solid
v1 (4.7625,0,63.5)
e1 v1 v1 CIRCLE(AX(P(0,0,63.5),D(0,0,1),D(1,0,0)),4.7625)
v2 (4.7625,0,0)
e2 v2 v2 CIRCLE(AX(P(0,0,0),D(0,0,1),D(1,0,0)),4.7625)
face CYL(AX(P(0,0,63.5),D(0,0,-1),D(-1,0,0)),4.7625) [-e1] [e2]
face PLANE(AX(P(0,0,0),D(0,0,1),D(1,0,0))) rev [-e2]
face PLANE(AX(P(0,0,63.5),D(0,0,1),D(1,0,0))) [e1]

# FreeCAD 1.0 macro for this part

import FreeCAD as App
import Part
import Sketcher
Q = App.Units.Quantity

doc = App.newDocument("Part")
body = doc.addObject("PartDesign::Body", "Body")

sketch1 = body.newObject("Sketcher::SketchObject", "Sketch")
sketch1.AttachmentSupport = (doc.getObject("XY_Plane"), [""])
sketch1.MapMode = "FlatFace"
sketch1.addGeometry(Part.Circle(App.Vector(0, 0, 0), App.Vector(0, 0, 1), 4.8), False)
sketch1.addConstraint([
    Sketcher.Constraint("Coincident", 0, 3, -1, 1),
    Sketcher.Constraint("Diameter", 0, Q("0.375 in")),
])
pad1 = body.newObject("PartDesign::Pad", "Pad")
pad1.Profile = sketch1
pad1.Length = Q("2.5 in")

doc.recompute()
